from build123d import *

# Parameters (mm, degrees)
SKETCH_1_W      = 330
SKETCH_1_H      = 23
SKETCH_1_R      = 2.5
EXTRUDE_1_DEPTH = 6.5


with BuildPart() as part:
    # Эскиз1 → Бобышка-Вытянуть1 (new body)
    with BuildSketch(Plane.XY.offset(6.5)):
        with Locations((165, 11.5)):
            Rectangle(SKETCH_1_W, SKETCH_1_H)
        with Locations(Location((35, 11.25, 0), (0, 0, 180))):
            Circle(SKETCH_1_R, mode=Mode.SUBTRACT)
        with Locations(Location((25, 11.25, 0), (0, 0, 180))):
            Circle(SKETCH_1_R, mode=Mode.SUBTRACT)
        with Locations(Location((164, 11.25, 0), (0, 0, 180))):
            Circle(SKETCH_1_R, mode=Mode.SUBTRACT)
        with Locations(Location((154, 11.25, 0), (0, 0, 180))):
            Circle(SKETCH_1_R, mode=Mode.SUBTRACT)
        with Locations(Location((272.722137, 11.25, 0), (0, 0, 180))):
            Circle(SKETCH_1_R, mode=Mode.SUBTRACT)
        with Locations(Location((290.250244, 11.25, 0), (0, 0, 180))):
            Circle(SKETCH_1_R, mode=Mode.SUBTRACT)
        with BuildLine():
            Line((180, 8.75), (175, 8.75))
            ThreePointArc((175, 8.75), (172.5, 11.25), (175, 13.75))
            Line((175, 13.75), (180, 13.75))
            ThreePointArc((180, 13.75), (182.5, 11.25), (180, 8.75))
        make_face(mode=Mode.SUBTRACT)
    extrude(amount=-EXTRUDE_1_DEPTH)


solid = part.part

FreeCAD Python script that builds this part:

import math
import FreeCAD as App
import Part
import Sketcher

V = App.Vector

doc = App.newDocument("Part")
body = doc.addObject("PartDesign::Body", "Body")

sketch1 = body.newObject("Sketcher::SketchObject", "Sketch")
sketch1.AttachmentSupport = (doc.getObject("XY_Plane"), [""])
sketch1.MapMode = "FlatFace"
sketch1.AttachmentOffset = App.Placement(V(0, 0, 6.5), App.Rotation())
sketch1.addGeometry([
    Part.LineSegment(V(0, 23, 0), V(0, 0, 0)),
    Part.LineSegment(V(0, 0, 0), V(330, 0, 0)),
    Part.LineSegment(V(330, 0, 0), V(330, 23, 0)),
    Part.LineSegment(V(330, 23, 0), V(0, 23, 0)),
    Part.Circle(V(25, 11.2, 0), V(0, 0, 1), 2.5),
    Part.Circle(V(35, 11.2, 0), V(0, 0, 1), 2.5),
    Part.Circle(V(154, 11.2, 0), V(0, 0, 1), 2.5),
    Part.Circle(V(164, 11.2, 0), V(0, 0, 1), 2.5),
    Part.ArcOfCircle(Part.Circle(V(180, 11.2, 0), V(0, 0, 1), 2.5), math.radians(-90), math.radians(90)),
    Part.LineSegment(V(180, 8.8, 0), V(175, 8.8, 0)),
    Part.ArcOfCircle(Part.Circle(V(175, 11.2, 0), V(0, 0, 1), 2.5), math.radians(90), math.radians(270)),
    Part.LineSegment(V(175, 13.8, 0), V(180, 13.8, 0)),
    Part.Circle(V(272.7, 11.2, 0), V(0, 0, 1), 2.5),
    Part.Circle(V(290.3, 11.2, 0), V(0, 0, 1), 2.5),
], False)
sketch1.addConstraint([
    Sketcher.Constraint("Coincident", 0, 2, 1, 1),
    Sketcher.Constraint("Coincident", 1, 2, 2, 1),
    Sketcher.Constraint("Coincident", 2, 2, 3, 1),
    Sketcher.Constraint("Coincident", 3, 2, 0, 1),
    Sketcher.Constraint("Tangent", 8, 1, 9, 1),
    Sketcher.Constraint("Tangent", 9, 2, 10, 2),
    Sketcher.Constraint("Tangent", 10, 1, 11, 1),
    Sketcher.Constraint("Tangent", 11, 2, 8, 2),
    Sketcher.Constraint("Vertical", 0),
    Sketcher.Constraint("Horizontal", 1),
    Sketcher.Constraint("Vertical", 2),
    Sketcher.Constraint("Horizontal", 3),
    Sketcher.Constraint("Horizontal", 9),
    Sketcher.Constraint("Horizontal", 11),
    Sketcher.Constraint("Coincident", 0, 2, -1, 1),
    Sketcher.Constraint("Equal", 4, 5),
    Sketcher.Constraint("Equal", 5, 6),
    Sketcher.Constraint("Equal", 6, 7),
    Sketcher.Constraint("Equal", 7, 8),
    Sketcher.Constraint("Equal", 10, 12),
    Sketcher.Constraint("Equal", 12, 13),
    Sketcher.Constraint("Horizontal", 4, 3, 5, 3),
    Sketcher.Constraint("Horizontal", 5, 3, 6, 3),
    Sketcher.Constraint("Horizontal", 6, 3, 7, 3),
    Sketcher.Constraint("Horizontal", 7, 3, 8, 3),
    Sketcher.Constraint("Horizontal", 10, 3, 12, 3),
    Sketcher.Constraint("Horizontal", 12, 3, 13, 3),
    Sketcher.Constraint("Diameter", 4, 5.0),
    Sketcher.Constraint("DistanceX", 1, 1, 1, 2, 330.0),
    Sketcher.Constraint("DistanceX", 9, 2, 9, 1, 5.0),
    Sketcher.Constraint("DistanceY", 0, 2, 0, 1, 23.0),
    Sketcher.Constraint("DistanceX", -1, 1, 4, 3, 25.0),
    Sketcher.Constraint("DistanceX", -1, 1, 5, 3, 35.0),
    Sketcher.Constraint("DistanceX", -1, 1, 6, 3, 154.0),
    Sketcher.Constraint("DistanceX", -1, 1, 7, 3, 164.0),
    Sketcher.Constraint("DistanceX", -1, 1, 8, 3, 180.0),
    Sketcher.Constraint("DistanceY", -1, 1, 4, 3, 11.25),
    Sketcher.Constraint("DistanceX", -1, 1, 12, 3, 272.722137),
    Sketcher.Constraint("DistanceX", -1, 1, 13, 3, 290.250244),
])
pad1 = body.newObject("PartDesign::Pad", "Pad")
pad1.Profile = sketch1
pad1.Length = 6.5
pad1.Reversed = True

doc.recompute()
